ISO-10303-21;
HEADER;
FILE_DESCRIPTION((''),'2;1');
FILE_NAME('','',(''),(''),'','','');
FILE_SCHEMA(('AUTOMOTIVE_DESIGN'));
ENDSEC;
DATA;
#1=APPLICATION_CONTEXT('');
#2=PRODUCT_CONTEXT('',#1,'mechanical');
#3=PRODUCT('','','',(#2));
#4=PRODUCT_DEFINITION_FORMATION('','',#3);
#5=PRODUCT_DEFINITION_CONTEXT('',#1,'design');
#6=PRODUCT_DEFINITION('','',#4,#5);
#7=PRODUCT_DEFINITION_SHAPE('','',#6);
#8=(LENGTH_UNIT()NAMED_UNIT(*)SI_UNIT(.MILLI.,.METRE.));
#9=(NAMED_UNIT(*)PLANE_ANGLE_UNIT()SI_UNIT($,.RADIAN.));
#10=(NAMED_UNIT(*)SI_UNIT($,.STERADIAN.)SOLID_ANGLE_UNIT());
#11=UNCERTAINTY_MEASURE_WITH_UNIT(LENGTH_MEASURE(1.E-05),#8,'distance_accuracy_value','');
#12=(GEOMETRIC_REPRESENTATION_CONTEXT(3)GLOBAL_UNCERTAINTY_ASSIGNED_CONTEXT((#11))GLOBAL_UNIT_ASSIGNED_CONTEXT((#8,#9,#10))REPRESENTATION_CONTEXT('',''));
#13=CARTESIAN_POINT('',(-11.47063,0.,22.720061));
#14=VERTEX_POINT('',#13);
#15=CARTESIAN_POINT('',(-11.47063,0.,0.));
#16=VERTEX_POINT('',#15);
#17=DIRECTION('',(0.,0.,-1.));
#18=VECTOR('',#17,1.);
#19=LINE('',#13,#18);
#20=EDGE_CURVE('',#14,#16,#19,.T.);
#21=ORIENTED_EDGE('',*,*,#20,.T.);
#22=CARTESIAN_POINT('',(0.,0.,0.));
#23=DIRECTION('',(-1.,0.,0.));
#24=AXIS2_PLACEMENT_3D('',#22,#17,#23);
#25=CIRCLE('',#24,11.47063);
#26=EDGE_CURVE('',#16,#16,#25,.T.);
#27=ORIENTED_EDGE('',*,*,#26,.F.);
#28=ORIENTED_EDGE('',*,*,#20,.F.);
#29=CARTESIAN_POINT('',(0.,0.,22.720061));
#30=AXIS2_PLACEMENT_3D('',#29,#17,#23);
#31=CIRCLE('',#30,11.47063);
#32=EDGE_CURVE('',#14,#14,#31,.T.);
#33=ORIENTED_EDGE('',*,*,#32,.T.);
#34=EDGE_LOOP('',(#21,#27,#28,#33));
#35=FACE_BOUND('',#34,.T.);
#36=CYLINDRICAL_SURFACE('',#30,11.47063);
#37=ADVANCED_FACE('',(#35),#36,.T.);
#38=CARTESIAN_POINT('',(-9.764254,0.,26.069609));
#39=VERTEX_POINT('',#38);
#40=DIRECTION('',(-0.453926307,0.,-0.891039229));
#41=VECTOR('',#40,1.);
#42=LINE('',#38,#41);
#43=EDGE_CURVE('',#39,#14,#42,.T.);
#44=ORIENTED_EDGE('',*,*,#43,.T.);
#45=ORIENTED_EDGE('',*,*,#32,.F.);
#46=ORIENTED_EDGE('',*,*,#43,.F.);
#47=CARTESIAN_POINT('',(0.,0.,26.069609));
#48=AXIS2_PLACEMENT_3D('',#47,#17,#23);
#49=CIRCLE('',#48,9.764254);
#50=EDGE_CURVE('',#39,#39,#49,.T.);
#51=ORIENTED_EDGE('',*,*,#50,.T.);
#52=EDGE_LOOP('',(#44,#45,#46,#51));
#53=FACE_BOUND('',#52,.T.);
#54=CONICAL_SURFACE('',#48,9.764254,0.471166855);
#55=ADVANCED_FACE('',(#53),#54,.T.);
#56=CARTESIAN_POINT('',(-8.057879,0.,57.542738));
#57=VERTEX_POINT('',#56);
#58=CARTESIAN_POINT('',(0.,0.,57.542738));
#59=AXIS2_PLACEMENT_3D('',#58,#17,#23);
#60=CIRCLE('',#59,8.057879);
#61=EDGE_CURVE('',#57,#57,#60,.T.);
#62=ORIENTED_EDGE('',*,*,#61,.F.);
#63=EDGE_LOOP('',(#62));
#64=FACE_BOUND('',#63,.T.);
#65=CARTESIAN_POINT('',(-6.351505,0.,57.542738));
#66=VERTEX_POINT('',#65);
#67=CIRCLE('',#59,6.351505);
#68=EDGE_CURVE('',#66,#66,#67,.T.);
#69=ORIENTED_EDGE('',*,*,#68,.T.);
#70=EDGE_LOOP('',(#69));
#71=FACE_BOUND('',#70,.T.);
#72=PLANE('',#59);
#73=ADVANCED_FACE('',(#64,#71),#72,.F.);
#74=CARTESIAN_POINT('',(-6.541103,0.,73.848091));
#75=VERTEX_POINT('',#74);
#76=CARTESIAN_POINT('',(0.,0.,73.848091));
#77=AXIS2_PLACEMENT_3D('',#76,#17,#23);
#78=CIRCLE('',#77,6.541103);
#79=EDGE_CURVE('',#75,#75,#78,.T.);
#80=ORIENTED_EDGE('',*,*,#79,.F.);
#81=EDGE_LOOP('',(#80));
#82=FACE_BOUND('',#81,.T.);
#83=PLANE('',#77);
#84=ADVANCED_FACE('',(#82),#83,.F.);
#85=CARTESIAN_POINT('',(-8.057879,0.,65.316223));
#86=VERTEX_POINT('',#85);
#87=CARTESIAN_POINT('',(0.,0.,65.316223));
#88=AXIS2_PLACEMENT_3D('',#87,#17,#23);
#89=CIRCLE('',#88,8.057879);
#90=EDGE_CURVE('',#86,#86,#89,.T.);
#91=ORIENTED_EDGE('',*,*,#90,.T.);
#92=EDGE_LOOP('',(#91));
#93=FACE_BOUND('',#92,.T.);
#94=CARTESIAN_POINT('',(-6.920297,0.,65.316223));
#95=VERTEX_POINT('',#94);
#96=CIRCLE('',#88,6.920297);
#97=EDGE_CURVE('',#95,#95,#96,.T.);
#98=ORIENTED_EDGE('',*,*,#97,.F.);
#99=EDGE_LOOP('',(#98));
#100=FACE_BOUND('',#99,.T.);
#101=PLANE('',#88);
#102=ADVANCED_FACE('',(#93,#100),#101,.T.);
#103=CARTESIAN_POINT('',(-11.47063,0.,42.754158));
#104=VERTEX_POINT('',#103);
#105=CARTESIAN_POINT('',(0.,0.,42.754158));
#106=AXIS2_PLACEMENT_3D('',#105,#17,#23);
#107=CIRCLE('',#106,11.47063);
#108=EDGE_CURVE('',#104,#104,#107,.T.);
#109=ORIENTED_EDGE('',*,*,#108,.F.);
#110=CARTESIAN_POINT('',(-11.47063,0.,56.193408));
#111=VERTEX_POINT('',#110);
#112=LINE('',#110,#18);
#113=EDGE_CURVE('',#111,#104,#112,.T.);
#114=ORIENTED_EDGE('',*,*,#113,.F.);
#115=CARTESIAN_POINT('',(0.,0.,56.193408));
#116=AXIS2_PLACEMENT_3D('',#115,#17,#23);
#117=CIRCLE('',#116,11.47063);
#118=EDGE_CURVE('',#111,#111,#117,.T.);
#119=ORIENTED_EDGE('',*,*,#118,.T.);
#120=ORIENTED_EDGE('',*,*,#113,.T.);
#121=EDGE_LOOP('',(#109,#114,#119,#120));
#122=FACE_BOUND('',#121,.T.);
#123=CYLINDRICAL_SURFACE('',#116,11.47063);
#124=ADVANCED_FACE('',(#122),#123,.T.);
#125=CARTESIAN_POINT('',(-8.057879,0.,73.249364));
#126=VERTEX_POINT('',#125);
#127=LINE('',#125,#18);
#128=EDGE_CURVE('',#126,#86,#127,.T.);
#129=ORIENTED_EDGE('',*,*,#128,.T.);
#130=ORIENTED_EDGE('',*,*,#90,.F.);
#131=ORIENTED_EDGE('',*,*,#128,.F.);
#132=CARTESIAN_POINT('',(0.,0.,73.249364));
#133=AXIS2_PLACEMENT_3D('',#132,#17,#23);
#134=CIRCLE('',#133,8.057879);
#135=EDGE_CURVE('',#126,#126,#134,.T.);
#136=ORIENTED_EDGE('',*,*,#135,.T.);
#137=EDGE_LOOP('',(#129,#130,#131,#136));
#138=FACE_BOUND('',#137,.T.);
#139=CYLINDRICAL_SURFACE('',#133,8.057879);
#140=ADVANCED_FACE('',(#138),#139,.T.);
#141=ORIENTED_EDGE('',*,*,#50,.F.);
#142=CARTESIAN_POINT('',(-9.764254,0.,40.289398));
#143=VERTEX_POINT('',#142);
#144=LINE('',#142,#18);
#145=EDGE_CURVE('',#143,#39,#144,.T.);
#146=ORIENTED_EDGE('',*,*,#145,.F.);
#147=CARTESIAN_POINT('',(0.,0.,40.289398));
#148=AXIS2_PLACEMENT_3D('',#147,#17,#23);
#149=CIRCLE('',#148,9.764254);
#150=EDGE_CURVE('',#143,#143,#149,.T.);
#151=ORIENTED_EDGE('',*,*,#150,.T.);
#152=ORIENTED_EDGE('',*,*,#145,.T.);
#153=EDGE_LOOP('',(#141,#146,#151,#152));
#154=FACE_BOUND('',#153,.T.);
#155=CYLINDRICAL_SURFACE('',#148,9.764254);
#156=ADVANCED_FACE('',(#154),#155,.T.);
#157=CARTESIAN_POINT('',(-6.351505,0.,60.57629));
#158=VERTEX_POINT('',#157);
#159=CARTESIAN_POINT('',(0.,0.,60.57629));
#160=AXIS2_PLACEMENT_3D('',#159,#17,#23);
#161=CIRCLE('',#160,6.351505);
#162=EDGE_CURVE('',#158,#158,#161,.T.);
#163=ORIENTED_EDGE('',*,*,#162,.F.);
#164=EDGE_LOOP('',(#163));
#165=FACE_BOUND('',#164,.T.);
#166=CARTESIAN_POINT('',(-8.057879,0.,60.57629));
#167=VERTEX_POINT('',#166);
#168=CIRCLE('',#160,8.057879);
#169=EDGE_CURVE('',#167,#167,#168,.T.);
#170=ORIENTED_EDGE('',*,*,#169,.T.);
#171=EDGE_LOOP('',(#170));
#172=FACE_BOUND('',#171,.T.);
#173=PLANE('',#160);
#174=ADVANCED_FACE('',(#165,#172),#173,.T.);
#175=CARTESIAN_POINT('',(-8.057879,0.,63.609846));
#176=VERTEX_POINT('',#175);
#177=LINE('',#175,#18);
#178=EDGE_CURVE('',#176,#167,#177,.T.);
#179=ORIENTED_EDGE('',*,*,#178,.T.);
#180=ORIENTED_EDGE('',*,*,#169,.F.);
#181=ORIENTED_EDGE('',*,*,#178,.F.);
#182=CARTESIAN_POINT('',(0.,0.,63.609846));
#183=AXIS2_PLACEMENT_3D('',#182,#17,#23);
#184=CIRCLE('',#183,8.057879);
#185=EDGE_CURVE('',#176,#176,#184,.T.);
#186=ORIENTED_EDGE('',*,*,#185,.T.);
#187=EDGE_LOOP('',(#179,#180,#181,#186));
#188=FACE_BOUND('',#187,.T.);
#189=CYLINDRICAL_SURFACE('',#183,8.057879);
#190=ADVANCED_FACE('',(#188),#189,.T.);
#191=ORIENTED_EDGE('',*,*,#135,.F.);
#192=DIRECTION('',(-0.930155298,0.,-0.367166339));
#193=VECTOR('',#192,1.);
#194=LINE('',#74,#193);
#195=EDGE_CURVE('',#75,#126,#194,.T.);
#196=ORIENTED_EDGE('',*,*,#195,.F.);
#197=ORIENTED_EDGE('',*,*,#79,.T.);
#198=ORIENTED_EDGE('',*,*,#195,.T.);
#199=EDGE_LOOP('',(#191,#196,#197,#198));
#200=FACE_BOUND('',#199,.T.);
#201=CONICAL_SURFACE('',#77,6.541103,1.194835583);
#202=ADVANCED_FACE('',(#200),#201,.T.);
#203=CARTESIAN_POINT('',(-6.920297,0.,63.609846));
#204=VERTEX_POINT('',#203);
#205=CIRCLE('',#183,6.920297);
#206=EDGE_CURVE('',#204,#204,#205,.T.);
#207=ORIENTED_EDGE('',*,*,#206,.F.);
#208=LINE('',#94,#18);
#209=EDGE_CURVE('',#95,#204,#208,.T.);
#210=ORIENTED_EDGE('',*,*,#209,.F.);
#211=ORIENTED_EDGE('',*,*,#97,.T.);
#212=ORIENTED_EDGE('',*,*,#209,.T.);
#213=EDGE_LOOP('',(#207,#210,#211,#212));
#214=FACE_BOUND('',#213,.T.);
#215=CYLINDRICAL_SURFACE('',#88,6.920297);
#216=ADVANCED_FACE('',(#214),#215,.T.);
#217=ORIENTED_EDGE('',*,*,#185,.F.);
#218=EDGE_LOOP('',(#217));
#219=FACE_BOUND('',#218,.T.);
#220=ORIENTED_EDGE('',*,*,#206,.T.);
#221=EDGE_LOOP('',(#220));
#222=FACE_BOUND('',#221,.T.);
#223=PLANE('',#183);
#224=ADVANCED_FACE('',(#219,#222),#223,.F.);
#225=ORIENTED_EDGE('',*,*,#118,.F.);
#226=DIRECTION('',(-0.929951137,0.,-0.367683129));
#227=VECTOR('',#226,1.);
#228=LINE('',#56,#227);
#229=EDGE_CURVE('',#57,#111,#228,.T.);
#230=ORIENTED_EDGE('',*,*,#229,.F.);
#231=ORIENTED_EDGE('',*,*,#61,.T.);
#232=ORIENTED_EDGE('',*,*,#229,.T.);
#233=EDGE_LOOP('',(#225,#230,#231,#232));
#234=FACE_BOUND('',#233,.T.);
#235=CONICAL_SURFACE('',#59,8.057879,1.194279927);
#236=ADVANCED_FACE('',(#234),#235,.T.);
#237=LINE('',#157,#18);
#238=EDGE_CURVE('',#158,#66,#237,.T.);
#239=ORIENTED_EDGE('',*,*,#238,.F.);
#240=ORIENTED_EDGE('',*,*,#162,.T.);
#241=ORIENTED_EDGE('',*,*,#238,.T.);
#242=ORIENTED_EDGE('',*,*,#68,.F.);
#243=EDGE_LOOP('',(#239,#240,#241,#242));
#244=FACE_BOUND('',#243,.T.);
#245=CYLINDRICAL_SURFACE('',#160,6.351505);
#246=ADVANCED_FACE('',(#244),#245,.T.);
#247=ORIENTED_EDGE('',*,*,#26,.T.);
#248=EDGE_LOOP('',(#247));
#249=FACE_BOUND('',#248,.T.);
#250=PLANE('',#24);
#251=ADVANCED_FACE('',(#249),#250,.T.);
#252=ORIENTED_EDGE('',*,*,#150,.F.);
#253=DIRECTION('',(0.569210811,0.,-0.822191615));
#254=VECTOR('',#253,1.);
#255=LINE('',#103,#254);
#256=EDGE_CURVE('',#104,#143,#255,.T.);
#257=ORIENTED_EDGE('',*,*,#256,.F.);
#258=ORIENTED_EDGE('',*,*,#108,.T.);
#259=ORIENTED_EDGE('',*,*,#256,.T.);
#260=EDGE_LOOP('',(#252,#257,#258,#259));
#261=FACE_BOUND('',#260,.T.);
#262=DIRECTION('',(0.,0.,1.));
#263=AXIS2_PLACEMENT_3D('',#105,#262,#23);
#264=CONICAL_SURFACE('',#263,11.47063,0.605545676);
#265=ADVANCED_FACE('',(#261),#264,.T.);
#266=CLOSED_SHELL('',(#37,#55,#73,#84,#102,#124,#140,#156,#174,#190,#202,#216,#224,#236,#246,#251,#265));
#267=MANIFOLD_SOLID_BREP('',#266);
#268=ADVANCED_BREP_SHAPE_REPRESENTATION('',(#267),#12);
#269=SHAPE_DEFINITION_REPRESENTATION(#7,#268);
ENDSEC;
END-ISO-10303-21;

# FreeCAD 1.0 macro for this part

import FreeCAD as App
import Part
import Sketcher
from FreeCAD import Vector

doc = App.newDocument("Part")
body = doc.addObject("PartDesign::Body", "Body")

sketch1 = body.newObject("Sketcher::SketchObject", "Sketch")
sketch1.AttachmentSupport = (doc.getObject("XZ_Plane"), [""])
sketch1.MapMode = "FlatFace"
sketch1.addGeometry([
    Part.LineSegment(Vector(-11.5, 0, 0), Vector(0, 0, 0)),
    Part.LineSegment(Vector(0, 0, 0), Vector(0, 73.8, 0)),
    Part.LineSegment(Vector(0, 73.8, 0), Vector(-6.5, 73.8, 0)),
    Part.LineSegment(Vector(-6.5, 73.8, 0), Vector(-8.1, 73.2, 0)),
    Part.LineSegment(Vector(-8.1, 73.2, 0), Vector(-8.1, 65.3, 0)),
    Part.LineSegment(Vector(-8.1, 65.3, 0), Vector(-6.9, 65.3, 0)),
    Part.LineSegment(Vector(-6.9, 65.3, 0), Vector(-6.9, 63.6, 0)),
    Part.LineSegment(Vector(-6.9, 63.6, 0), Vector(-8.1, 63.6, 0)),
    Part.LineSegment(Vector(-8.1, 63.6, 0), Vector(-8.1, 60.6, 0)),
    Part.LineSegment(Vector(-8.1, 60.6, 0), Vector(-6.4, 60.6, 0)),
    Part.LineSegment(Vector(-6.4, 60.6, 0), Vector(-6.4, 57.5, 0)),
    Part.LineSegment(Vector(-6.4, 57.5, 0), Vector(-8.1, 57.5, 0)),
    Part.LineSegment(Vector(-8.1, 57.5, 0), Vector(-11.5, 56.2, 0)),
    Part.LineSegment(Vector(-11.5, 56.2, 0), Vector(-11.5, 42.8, 0)),
    Part.LineSegment(Vector(-11.5, 42.8, 0), Vector(-9.8, 40.3, 0)),
    Part.LineSegment(Vector(-9.8, 40.3, 0), Vector(-9.8, 26.1, 0)),
    Part.LineSegment(Vector(-9.8, 26.1, 0), Vector(-11.5, 22.7, 0)),
    Part.LineSegment(Vector(-11.5, 22.7, 0), Vector(-11.5, 0, 0)),
], False)
sketch1.addConstraint([
    Sketcher.Constraint("Coincident", 0, 2, 1, 1),
    Sketcher.Constraint("Coincident", 1, 2, 2, 1),
    Sketcher.Constraint("Coincident", 2, 2, 3, 1),
    Sketcher.Constraint("Coincident", 3, 2, 4, 1),
    Sketcher.Constraint("Coincident", 4, 2, 5, 1),
    Sketcher.Constraint("Coincident", 5, 2, 6, 1),
    Sketcher.Constraint("Coincident", 6, 2, 7, 1),
    Sketcher.Constraint("Coincident", 7, 2, 8, 1),
    Sketcher.Constraint("Coincident", 8, 2, 9, 1),
    Sketcher.Constraint("Coincident", 9, 2, 10, 1),
    Sketcher.Constraint("Coincident", 10, 2, 11, 1),
    Sketcher.Constraint("Coincident", 11, 2, 12, 1),
    Sketcher.Constraint("Coincident", 12, 2, 13, 1),
    Sketcher.Constraint("Coincident", 13, 2, 14, 1),
    Sketcher.Constraint("Coincident", 14, 2, 15, 1),
    Sketcher.Constraint("Coincident", 15, 2, 16, 1),
    Sketcher.Constraint("Coincident", 16, 2, 17, 1),
    Sketcher.Constraint("Coincident", 17, 2, 0, 1),
    Sketcher.Constraint("Horizontal", 0),
    Sketcher.Constraint("Vertical", 1),
    Sketcher.Constraint("Horizontal", 2),
    Sketcher.Constraint("Vertical", 4),
    Sketcher.Constraint("Horizontal", 5),
    Sketcher.Constraint("Vertical", 6),
    Sketcher.Constraint("Horizontal", 7),
    Sketcher.Constraint("Vertical", 8),
    Sketcher.Constraint("Horizontal", 9),
    Sketcher.Constraint("Vertical", 10),
    Sketcher.Constraint("Horizontal", 11),
    Sketcher.Constraint("Vertical", 13),
    Sketcher.Constraint("Vertical", 15),
    Sketcher.Constraint("Vertical", 17),
    Sketcher.Constraint("Coincident", 0, 2, -1, 1),
    Sketcher.Constraint("Vertical", 4, 2, 7, 2),
    Sketcher.Constraint("Vertical", 8, 2, 11, 2),
    Sketcher.Constraint("Vertical", 13, 2, 16, 2),
    Sketcher.Constraint("DistanceX", 0, 1, 0, 2, 11.47063),
    Sketcher.Constraint("DistanceY", 1, 1, 1, 2, 73.848091),
    Sketcher.Constraint("DistanceY", 4, 2, 4, 1, 7.933141),
    Sketcher.Constraint("DistanceY", 13, 2, 13, 1, 13.43925),
    Sketcher.Constraint("DistanceY", 15, 2, 15, 1, 14.219789),
    Sketcher.Constraint("DistanceY", 17, 2, 17, 1, 22.720061),
    Sketcher.Constraint("DistanceY", 15, 2, 12, 2, 30.123799),
    Sketcher.Constraint("Distance", 3, 1.63067),
    Sketcher.Constraint("DistanceX", 2, 2, 2, 1, 6.541103),
    Sketcher.Constraint("DistanceX", 5, 1, 5, 2, 1.137582),
    Sketcher.Constraint("DistanceX", 9, 1, 9, 2, 1.706374),
    Sketcher.Constraint("DistanceY", 6, 2, 6, 1, 1.706377),
    Sketcher.Constraint("DistanceY", 8, 2, 8, 1, 3.033556),
    Sketcher.Constraint("DistanceY", 10, 2, 10, 1, 3.033552),
    Sketcher.Constraint("DistanceX", 3, 2, -1, 1, 8.057879),
    Sketcher.Constraint("DistanceY", -1, 1, 15, 2, 26.069609),
    Sketcher.Constraint("DistanceX", 14, 2, 10, 2, 3.412749),
])
revolution = body.newObject("PartDesign::Revolution", "Revolution")
revolution.Profile = sketch1
revolution.ReferenceAxis = (sketch1, ["V_Axis"])
revolution.Angle = 360

doc.recompute()
